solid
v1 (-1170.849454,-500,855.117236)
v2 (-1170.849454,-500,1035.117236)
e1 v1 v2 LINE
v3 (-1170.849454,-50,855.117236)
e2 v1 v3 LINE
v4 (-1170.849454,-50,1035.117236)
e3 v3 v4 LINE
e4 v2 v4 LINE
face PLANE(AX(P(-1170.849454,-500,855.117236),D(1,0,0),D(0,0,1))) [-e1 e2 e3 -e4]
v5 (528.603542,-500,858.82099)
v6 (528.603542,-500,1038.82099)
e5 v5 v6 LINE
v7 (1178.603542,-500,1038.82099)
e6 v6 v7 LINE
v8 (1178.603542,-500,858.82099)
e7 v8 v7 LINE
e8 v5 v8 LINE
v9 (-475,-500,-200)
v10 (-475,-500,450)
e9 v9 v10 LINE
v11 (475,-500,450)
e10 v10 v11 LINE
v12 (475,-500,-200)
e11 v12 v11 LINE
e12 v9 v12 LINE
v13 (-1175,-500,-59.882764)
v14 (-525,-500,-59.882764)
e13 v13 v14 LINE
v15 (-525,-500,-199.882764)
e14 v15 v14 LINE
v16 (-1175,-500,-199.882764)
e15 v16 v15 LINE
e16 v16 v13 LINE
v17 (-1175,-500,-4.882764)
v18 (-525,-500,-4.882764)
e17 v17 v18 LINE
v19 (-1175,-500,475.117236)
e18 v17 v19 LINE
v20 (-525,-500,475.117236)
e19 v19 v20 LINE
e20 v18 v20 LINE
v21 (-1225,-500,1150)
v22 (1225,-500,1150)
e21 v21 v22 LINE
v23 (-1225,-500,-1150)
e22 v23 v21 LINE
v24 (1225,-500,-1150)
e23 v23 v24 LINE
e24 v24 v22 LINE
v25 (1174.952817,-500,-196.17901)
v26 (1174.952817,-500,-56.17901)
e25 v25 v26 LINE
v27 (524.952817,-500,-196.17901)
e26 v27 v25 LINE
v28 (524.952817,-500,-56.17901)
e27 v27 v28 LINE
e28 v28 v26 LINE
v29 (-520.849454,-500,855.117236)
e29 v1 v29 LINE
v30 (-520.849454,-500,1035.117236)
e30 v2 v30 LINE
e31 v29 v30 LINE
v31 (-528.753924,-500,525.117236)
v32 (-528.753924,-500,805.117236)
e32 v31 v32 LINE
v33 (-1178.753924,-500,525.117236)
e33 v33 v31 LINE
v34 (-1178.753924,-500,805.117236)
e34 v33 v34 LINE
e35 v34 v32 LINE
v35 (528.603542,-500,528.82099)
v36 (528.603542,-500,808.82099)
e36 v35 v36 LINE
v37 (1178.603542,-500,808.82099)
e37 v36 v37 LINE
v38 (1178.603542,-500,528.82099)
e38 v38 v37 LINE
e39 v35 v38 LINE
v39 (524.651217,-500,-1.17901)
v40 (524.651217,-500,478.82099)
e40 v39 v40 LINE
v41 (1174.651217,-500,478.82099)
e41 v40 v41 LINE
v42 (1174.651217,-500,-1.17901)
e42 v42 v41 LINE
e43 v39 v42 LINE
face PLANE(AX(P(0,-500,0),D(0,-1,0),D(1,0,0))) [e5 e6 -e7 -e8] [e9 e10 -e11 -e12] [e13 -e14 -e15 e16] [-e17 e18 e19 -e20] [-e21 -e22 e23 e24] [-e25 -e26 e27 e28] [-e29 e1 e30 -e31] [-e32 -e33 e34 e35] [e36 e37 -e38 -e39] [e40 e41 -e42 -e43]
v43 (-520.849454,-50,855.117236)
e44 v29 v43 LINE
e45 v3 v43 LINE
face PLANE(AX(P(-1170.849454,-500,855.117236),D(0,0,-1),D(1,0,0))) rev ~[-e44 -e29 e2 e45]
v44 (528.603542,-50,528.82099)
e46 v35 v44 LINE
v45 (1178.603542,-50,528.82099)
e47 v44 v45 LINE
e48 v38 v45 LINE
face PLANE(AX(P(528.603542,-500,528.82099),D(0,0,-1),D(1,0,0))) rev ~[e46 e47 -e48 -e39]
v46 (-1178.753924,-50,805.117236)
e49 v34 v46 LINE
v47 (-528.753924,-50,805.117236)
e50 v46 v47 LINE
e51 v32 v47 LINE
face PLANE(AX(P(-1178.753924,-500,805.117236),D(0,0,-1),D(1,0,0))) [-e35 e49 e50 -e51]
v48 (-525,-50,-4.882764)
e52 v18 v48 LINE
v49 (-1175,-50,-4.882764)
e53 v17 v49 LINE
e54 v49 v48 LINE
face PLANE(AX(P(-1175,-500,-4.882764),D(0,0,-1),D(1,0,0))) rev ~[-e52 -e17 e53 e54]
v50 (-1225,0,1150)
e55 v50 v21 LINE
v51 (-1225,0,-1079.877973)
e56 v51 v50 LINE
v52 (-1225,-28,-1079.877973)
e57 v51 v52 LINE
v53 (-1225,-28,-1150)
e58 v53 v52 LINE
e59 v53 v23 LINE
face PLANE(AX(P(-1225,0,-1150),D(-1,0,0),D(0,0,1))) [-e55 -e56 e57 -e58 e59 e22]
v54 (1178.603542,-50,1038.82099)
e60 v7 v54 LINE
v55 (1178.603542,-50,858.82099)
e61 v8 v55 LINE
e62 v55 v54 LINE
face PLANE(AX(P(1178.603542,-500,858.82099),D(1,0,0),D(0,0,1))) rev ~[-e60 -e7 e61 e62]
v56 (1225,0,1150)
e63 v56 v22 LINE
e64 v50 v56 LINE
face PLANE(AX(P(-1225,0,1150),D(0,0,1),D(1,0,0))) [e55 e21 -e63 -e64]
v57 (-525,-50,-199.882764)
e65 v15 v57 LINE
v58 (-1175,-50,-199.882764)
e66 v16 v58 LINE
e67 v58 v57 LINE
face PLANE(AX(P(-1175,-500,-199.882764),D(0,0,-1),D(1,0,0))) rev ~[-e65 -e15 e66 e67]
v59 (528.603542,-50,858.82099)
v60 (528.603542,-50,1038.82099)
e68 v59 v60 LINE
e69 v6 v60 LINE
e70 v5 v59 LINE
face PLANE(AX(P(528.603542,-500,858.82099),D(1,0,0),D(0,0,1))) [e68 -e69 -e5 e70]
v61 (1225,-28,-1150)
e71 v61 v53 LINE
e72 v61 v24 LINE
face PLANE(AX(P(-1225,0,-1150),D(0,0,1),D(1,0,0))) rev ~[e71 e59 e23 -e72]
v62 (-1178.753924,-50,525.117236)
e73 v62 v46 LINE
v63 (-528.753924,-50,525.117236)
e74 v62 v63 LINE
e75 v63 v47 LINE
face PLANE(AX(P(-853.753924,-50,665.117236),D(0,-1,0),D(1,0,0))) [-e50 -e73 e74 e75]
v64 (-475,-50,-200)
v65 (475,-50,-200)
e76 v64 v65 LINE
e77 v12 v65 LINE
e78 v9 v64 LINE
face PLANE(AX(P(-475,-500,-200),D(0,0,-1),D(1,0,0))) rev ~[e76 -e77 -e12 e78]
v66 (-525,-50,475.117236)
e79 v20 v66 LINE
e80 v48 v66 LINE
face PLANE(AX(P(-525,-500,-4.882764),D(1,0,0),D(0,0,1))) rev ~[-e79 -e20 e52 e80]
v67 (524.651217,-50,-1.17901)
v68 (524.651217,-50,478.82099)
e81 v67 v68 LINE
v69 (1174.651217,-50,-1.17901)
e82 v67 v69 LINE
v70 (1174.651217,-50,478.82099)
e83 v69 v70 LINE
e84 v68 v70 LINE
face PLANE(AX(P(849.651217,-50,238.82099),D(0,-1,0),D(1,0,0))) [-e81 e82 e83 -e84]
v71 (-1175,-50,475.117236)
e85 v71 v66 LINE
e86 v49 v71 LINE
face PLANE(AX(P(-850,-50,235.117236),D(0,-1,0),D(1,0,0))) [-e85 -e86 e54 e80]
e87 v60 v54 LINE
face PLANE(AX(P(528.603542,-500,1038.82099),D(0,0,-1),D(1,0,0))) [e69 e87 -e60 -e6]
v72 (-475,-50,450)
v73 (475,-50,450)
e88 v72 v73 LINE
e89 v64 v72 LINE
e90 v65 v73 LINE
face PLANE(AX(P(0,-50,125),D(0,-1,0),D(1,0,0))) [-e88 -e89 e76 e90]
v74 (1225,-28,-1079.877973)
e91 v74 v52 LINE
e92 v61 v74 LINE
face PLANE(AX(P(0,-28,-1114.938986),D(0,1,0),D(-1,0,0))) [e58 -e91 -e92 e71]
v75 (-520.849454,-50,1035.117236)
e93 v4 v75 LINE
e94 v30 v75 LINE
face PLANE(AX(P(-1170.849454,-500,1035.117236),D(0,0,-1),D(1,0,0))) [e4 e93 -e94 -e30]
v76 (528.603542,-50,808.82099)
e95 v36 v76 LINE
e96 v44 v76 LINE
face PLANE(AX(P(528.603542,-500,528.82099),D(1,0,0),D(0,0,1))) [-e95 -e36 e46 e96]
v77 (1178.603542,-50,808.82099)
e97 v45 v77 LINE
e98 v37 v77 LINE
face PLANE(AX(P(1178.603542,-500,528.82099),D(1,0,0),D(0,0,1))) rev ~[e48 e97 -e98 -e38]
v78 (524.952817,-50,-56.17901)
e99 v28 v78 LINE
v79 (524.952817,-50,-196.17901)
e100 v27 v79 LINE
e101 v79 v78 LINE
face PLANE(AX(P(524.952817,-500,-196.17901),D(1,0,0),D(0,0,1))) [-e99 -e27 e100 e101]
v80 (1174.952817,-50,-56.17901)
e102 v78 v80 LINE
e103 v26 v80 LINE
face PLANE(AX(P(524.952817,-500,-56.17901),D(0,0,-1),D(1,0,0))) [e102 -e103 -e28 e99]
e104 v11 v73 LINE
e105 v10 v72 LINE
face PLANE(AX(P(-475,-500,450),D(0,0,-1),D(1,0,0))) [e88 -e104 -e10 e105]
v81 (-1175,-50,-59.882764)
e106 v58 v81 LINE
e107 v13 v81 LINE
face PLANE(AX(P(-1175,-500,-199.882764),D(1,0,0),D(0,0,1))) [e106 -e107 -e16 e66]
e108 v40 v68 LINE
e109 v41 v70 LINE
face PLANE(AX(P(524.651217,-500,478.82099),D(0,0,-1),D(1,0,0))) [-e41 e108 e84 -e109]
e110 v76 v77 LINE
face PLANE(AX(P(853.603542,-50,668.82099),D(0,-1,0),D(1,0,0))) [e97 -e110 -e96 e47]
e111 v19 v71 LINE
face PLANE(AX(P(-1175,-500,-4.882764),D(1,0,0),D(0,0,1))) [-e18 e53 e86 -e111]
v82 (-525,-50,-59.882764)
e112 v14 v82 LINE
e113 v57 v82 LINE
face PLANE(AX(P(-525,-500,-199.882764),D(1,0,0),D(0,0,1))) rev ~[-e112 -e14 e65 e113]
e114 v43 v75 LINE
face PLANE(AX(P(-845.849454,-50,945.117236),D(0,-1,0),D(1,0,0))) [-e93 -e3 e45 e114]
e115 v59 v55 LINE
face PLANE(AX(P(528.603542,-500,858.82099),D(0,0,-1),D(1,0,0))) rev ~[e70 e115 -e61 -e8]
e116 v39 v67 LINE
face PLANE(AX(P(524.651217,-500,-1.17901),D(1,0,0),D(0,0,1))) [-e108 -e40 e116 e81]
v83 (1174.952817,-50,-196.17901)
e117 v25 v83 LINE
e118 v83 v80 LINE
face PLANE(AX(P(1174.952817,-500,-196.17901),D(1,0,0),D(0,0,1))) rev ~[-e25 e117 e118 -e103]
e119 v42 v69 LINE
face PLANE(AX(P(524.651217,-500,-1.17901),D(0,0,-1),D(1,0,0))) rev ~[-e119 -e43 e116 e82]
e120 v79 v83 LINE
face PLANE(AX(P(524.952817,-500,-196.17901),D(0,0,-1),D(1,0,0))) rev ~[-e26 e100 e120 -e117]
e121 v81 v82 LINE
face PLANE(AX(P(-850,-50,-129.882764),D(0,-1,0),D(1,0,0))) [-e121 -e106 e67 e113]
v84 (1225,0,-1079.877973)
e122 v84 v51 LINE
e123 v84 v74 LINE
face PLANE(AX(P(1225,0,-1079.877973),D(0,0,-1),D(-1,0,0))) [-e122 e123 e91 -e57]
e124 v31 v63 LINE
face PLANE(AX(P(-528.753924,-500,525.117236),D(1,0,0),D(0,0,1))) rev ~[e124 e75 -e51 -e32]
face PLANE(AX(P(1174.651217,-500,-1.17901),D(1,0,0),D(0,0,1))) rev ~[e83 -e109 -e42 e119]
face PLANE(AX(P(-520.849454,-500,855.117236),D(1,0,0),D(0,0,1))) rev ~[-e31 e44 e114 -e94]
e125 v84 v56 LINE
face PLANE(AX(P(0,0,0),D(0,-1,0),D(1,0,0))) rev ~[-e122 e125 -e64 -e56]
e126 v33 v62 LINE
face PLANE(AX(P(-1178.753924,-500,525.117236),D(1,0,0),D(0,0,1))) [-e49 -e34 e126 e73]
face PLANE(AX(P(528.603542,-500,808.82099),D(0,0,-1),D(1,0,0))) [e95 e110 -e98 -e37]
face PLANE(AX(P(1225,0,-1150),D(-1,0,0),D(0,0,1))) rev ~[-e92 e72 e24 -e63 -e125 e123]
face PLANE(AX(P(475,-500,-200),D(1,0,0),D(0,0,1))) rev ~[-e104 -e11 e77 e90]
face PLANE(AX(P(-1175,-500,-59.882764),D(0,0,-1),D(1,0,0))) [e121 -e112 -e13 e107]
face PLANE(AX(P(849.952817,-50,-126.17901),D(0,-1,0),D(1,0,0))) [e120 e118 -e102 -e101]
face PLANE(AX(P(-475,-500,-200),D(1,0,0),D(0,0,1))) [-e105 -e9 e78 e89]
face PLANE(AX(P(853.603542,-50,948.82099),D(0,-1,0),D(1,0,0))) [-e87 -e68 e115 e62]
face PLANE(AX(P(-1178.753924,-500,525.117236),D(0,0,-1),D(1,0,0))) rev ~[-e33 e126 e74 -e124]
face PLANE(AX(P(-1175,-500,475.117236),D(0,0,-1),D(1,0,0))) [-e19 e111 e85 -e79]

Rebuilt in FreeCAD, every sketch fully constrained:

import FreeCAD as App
import Part
import Sketcher
from FreeCAD import Vector


def add_polygon(sketch, points):
    """Adds a closed chain of lines whose ends are joined by coincident constraints."""
    first, n = sketch.GeometryCount, len(points)
    for a, b in zip(points, points[1:] + points[:1]):
        sketch.addGeometry(Part.LineSegment(App.Vector(*a, 0), App.Vector(*b, 0)), False)
    for i in range(n):
        sketch.addConstraint(Sketcher.Constraint("Coincident", first + i, 2, first + (i + 1) % n, 1))

doc = App.newDocument("Part")
params = doc.addObject("Spreadsheet::Sheet", "Params")
for row, (alias, value) in enumerate([
    ("sketch1_width", "2450 mm"),
    ("sketch1_height", "2300 mm"),
    ("pad1_length", "500 mm"),
    ("sketch2_width", "2450 mm"),
    ("pocket1_length", "28 mm"),
    ("sketch3_width", "950 mm"),
    ("sketch3_height", "650 mm"),
    ("pocket2_length", "450 mm"),
    ("sketch4_width", "650 mm"),
    ("sketch4_height", "180 mm"),
    ("sketch4_height2", "280 mm"),
    ("sketch4_height3", "480 mm"),
    ("sketch4_height4", "140 mm"),
    ("pocket3_length", "450 mm"),
], start=1):
    params.set(f"A{row}", alias)
    params.set(f"B{row}", "=" + value)
    params.setAlias(f"B{row}", alias)

body = doc.addObject("PartDesign::Body", "Body")

sketch1 = body.newObject("Sketcher::SketchObject", "Sketch")
sketch1.AttachmentSupport = (doc.getObject("XZ_Plane"), [""])
sketch1.MapMode = "FlatFace"
add_polygon(sketch1, [(-1225, 1150), (-1225, -1150), (1225, -1150), (1225, 1150)])
sketch1.addConstraint(Sketcher.Constraint("Vertical", 0))
sketch1.addConstraint(Sketcher.Constraint("Horizontal", 1))
sketch1.addConstraint(Sketcher.Constraint("Vertical", 2))
sketch1.addConstraint(Sketcher.Constraint("Horizontal", 3))
sketch1.addConstraint(Sketcher.Constraint("Symmetric", 0, 2, 2, 2, -1, 1))
sketch1.addConstraint(Sketcher.Constraint("DistanceX", 1, 1, 1, 2, 2450.0))
sketch1.addConstraint(Sketcher.Constraint("DistanceY", 0, 2, 0, 1, 2300.0))
sketch1.setExpression("Constraints[9]", "Params.sketch1_width")
sketch1.setExpression("Constraints[10]", "Params.sketch1_height")
pad1 = body.newObject("PartDesign::Pad", "Pad")
pad1.Profile = sketch1
pad1.setExpression("Length", "Params.pad1_length")

sketch2 = body.newObject("Sketcher::SketchObject", "Sketch001")
sketch2.AttachmentSupport = (doc.getObject("XZ_Plane"), [""])
sketch2.MapMode = "FlatFace"
add_polygon(sketch2, [(1225, -1080), (1225, -1150), (-1225, -1150), (-1225, -1080)])
sketch2.addConstraint(Sketcher.Constraint("Vertical", 0))
sketch2.addConstraint(Sketcher.Constraint("Horizontal", 1))
sketch2.addConstraint(Sketcher.Constraint("Vertical", 2))
sketch2.addConstraint(Sketcher.Constraint("Horizontal", 3))
sketch2.addConstraint(Sketcher.Constraint("DistanceX", 1, 2, 1, 1, 2450.0))
sketch2.addConstraint(Sketcher.Constraint("DistanceX", -1, 1, 0, 2, 1225.0))
sketch2.addConstraint(Sketcher.Constraint("DistanceY", 0, 2, -1, 1, 1150.0))
sketch2.addConstraint(Sketcher.Constraint("DistanceY", 0, 2, 0, 1, 70.122027))
sketch2.setExpression("Constraints[8]", "Params.sketch2_width")
pocket1 = body.newObject("PartDesign::Pocket", "Pocket")
pocket1.Profile = sketch2
pocket1.setExpression("Length", "Params.pocket1_length")
pocket1.Reversed = True

sketch3 = body.newObject("Sketcher::SketchObject", "Sketch002")
sketch3.AttachmentSupport = (doc.getObject("XZ_Plane"), [""])
sketch3.MapMode = "FlatFace"
sketch3.AttachmentOffset = App.Placement(Vector(0, 0, 500), App.Rotation())
add_polygon(sketch3, [(-475, 450), (-475, -200), (475, -200), (475, 450)])
sketch3.addConstraint(Sketcher.Constraint("Vertical", 0))
sketch3.addConstraint(Sketcher.Constraint("Horizontal", 1))
sketch3.addConstraint(Sketcher.Constraint("Vertical", 2))
sketch3.addConstraint(Sketcher.Constraint("Horizontal", 3))
sketch3.addConstraint(Sketcher.Constraint("DistanceX", 1, 1, 1, 2, 950.0))
sketch3.addConstraint(Sketcher.Constraint("DistanceY", 0, 2, 0, 1, 650.0))
sketch3.addConstraint(Sketcher.Constraint("DistanceX", 0, 2, -1, 1, 475.0))
sketch3.addConstraint(Sketcher.Constraint("DistanceY", 0, 2, -1, 1, 200.0))
sketch3.setExpression("Constraints[8]", "Params.sketch3_width")
sketch3.setExpression("Constraints[9]", "Params.sketch3_height")
pocket2 = body.newObject("PartDesign::Pocket", "Pocket001")
pocket2.Profile = sketch3
pocket2.setExpression("Length", "Params.pocket2_length")

sketch4 = body.newObject("Sketcher::SketchObject", "Sketch003")
sketch4.AttachmentSupport = (doc.getObject("XZ_Plane"), [""])
sketch4.MapMode = "FlatFace"
sketch4.AttachmentOffset = App.Placement(Vector(0, 0, 500), App.Rotation())
add_polygon(sketch4, [(-1171, 1035), (-1171, 855), (-521, 855), (-521, 1035)])
add_polygon(sketch4, [(-1179, 805), (-1179, 525), (-529, 525), (-529, 805)])
add_polygon(sketch4, [(-1175, 475), (-1175, -5), (-525, -5), (-525, 475)])
add_polygon(sketch4, [(525, 479), (525, -1), (1175, -1), (1175, 479)])
add_polygon(sketch4, [(529, 809), (529, 529), (1179, 529), (1179, 809)])
add_polygon(sketch4, [(529, 1039), (529, 859), (1179, 859), (1179, 1039)])
add_polygon(sketch4, [(-1175, -60), (-1175, -200), (-525, -200), (-525, -60)])
add_polygon(sketch4, [(525, -56), (525, -196), (1175, -196), (1175, -56)])
sketch4.addConstraint(Sketcher.Constraint("Vertical", 0))
sketch4.addConstraint(Sketcher.Constraint("Horizontal", 1))
sketch4.addConstraint(Sketcher.Constraint("Vertical", 2))
sketch4.addConstraint(Sketcher.Constraint("Horizontal", 3))
sketch4.addConstraint(Sketcher.Constraint("Vertical", 4))
sketch4.addConstraint(Sketcher.Constraint("Horizontal", 5))
sketch4.addConstraint(Sketcher.Constraint("Vertical", 6))
sketch4.addConstraint(Sketcher.Constraint("Horizontal", 7))
sketch4.addConstraint(Sketcher.Constraint("Vertical", 8))
sketch4.addConstraint(Sketcher.Constraint("Horizontal", 9))
sketch4.addConstraint(Sketcher.Constraint("Vertical", 10))
sketch4.addConstraint(Sketcher.Constraint("Horizontal", 11))
sketch4.addConstraint(Sketcher.Constraint("Vertical", 12))
sketch4.addConstraint(Sketcher.Constraint("Horizontal", 13))
sketch4.addConstraint(Sketcher.Constraint("Vertical", 14))
sketch4.addConstraint(Sketcher.Constraint("Horizontal", 15))
sketch4.addConstraint(Sketcher.Constraint("Vertical", 16))
sketch4.addConstraint(Sketcher.Constraint("Horizontal", 17))
sketch4.addConstraint(Sketcher.Constraint("Vertical", 18))
sketch4.addConstraint(Sketcher.Constraint("Horizontal", 19))
sketch4.addConstraint(Sketcher.Constraint("Vertical", 20))
sketch4.addConstraint(Sketcher.Constraint("Horizontal", 21))
sketch4.addConstraint(Sketcher.Constraint("Vertical", 22))
sketch4.addConstraint(Sketcher.Constraint("Horizontal", 23))
sketch4.addConstraint(Sketcher.Constraint("Vertical", 24))
sketch4.addConstraint(Sketcher.Constraint("Horizontal", 25))
sketch4.addConstraint(Sketcher.Constraint("Vertical", 26))
sketch4.addConstraint(Sketcher.Constraint("Horizontal", 27))
sketch4.addConstraint(Sketcher.Constraint("Vertical", 28))
sketch4.addConstraint(Sketcher.Constraint("Horizontal", 29))
sketch4.addConstraint(Sketcher.Constraint("Vertical", 30))
sketch4.addConstraint(Sketcher.Constraint("Horizontal", 31))
sketch4.addConstraint(Sketcher.Constraint("Vertical", 19, 2, 20, 2))
sketch4.addConstraint(Sketcher.Constraint("Vertical", 18, 2, 21, 2))
sketch4.addConstraint(Sketcher.Constraint("Vertical", 11, 2, 24, 2))
sketch4.addConstraint(Sketcher.Constraint("Vertical", 10, 2, 25, 2))
sketch4.addConstraint(Sketcher.Constraint("Equal", 3, 5))
sketch4.addConstraint(Sketcher.Constraint("Equal", 7, 9))
sketch4.addConstraint(Sketcher.Constraint("Equal", 11, 13))
sketch4.addConstraint(Sketcher.Constraint("Equal", 15, 17))
sketch4.addConstraint(Sketcher.Constraint("Equal", 27, 29))
sketch4.addConstraint(Sketcher.Constraint("Equal", 10, 12))
sketch4.addConstraint(Sketcher.Constraint("Equal", 6, 16))
sketch4.addConstraint(Sketcher.Constraint("Equal", 2, 20))
sketch4.addConstraint(Sketcher.Constraint("Equal", 26, 28))
sketch4.addConstraint(Sketcher.Constraint("DistanceX", 1, 1, 1, 2, 650.0))
sketch4.addConstraint(Sketcher.Constraint("DistanceY", 0, 2, 0, 1, 180.0))
sketch4.addConstraint(Sketcher.Constraint("DistanceY", 4, 2, 4, 1, 280.0))
sketch4.addConstraint(Sketcher.Constraint("DistanceY", 8, 2, 8, 1, 480.0))
sketch4.addConstraint(Sketcher.Constraint("DistanceY", 24, 2, 24, 1, 140.0))
sketch4.addConstraint(Sketcher.Constraint("DistanceX", 8, 2, -1, 1, 1175.0))
sketch4.addConstraint(Sketcher.Constraint("DistanceY", 4, 2, 0, 2, 330.0))
sketch4.addConstraint(Sketcher.Constraint("DistanceY", 8, 2, 4, 2, 530.0))
sketch4.addConstraint(Sketcher.Constraint("DistanceY", 15, 2, 16, 2, 50.0))
sketch4.addConstraint(Sketcher.Constraint("DistanceY", 19, 2, 20, 2, 50.0))
sketch4.addConstraint(Sketcher.Constraint("DistanceY", 24, 2, 8, 2, 195.0))
sketch4.addConstraint(Sketcher.Constraint("DistanceY", 28, 2, 12, 2, 195.0))
sketch4.addConstraint(Sketcher.Constraint("DistanceX", 12, 2, 28, 2, 0.3016))
sketch4.addConstraint(Sketcher.Constraint("DistanceY", 12, 2, -1, 1, 1.17901))
sketch4.addConstraint(Sketcher.Constraint("DistanceX", -1, 1, 16, 2, 528.603542))
sketch4.addConstraint(Sketcher.Constraint("DistanceX", 4, 2, 0, 2, 7.90447))
sketch4.addConstraint(Sketcher.Constraint("DistanceX", 5, 2, 12, 2, 1053.405142))
sketch4.addConstraint(Sketcher.Constraint("DistanceX", 0, 2, -1, 1, 1170.849454))
sketch4.addConstraint(Sketcher.Constraint("DistanceY", -1, 1, 0, 2, 855.117236))
sketch4.setExpression("Constraints[77]", "Params.sketch4_width")
sketch4.setExpression("Constraints[78]", "Params.sketch4_height")
sketch4.setExpression("Constraints[79]", "Params.sketch4_height2")
sketch4.setExpression("Constraints[80]", "Params.sketch4_height3")
sketch4.setExpression("Constraints[81]", "Params.sketch4_height4")
pocket3 = body.newObject("PartDesign::Pocket", "Pocket002")
pocket3.Profile = sketch4
pocket3.setExpression("Length", "Params.pocket3_length")

doc.recompute()
